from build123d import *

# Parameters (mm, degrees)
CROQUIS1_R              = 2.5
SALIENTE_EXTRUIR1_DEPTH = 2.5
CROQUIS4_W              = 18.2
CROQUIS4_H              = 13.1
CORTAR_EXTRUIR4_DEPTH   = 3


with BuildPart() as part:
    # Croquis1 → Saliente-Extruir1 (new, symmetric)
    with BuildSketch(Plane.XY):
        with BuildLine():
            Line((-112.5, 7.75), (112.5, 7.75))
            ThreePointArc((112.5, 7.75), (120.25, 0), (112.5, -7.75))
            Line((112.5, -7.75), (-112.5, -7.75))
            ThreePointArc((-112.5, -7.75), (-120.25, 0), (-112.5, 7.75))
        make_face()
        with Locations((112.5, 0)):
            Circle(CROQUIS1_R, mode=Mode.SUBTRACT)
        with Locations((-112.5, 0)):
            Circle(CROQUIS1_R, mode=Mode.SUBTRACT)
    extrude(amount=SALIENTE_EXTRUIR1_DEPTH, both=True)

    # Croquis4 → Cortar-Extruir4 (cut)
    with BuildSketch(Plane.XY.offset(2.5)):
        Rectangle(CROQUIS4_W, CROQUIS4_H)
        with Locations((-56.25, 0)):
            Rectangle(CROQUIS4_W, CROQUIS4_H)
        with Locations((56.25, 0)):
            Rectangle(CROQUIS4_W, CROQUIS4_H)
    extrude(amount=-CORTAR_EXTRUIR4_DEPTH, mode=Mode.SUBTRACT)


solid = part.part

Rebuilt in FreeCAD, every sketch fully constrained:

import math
import FreeCAD as App
import Part
import Sketcher
from FreeCAD import Vector
Q = App.Units.Quantity

doc = App.newDocument("Part")
body = doc.addObject("PartDesign::Body", "Body")

# Sketch on XY plane
sketch1 = doc.addObject("Sketcher::SketchObject", "Sketch")
body.addObject(sketch1)
sketch1.AttachmentSupport = (doc.XY_Plane, [""])
sketch1.MapMode = "FlatFace"
sketch1.addGeometry(Part.LineSegment(Vector(112.5, 7.8, 0), Vector(-112.5, 7.8, 0)), False)
sketch1.addGeometry(Part.ArcOfCircle(Part.Circle(Vector(-112.5, 0, 0), Vector(0, 0, 1), 7.8), math.radians(90), math.radians(270)), False)
sketch1.addGeometry(Part.LineSegment(Vector(-112.5, -7.8, 0), Vector(112.5, -7.8, 0)), False)
sketch1.addGeometry(Part.ArcOfCircle(Part.Circle(Vector(112.5, 0, 0), Vector(0, 0, 1), 7.8), math.radians(-90), math.radians(90)), False)
sketch1.addGeometry(Part.Circle(Vector(112.5, 0, 0), Vector(0, 0, 1), 2.5), False)
sketch1.addGeometry(Part.Circle(Vector(-112.5, 0, 0), Vector(0, 0, 1), 2.5), False)
sketch1.addConstraint(Sketcher.Constraint("Tangent", 0, 2, 1, 1))
sketch1.addConstraint(Sketcher.Constraint("Tangent", 1, 2, 2, 1))
sketch1.addConstraint(Sketcher.Constraint("Tangent", 2, 2, 3, 1))
sketch1.addConstraint(Sketcher.Constraint("Tangent", 3, 2, 0, 1))
sketch1.addConstraint(Sketcher.Constraint("Horizontal", 0))
sketch1.addConstraint(Sketcher.Constraint("Horizontal", 2))
sketch1.addConstraint(Sketcher.Constraint("Coincident", 4, 3, 3, 3))
sketch1.addConstraint(Sketcher.Constraint("Coincident", 5, 3, 1, 3))
sketch1.addConstraint(Sketcher.Constraint("Equal", 4, 5))
sketch1.addConstraint(Sketcher.Constraint("Symmetric", 1, 3, 3, 3, -1, 1))
sketch1.addConstraint(Sketcher.Constraint("Diameter", 4, Q("5 mm")))
sketch1.addConstraint(Sketcher.Constraint("DistanceX", 0, 2, 0, 1, Q("225 mm")))
sketch1.addConstraint(Sketcher.Constraint("Radius", 1, Q("7.75 mm")))
pad1 = doc.addObject("PartDesign::Pad", "Pad")
body.addObject(pad1)
pad1.Profile = sketch1
pad1.Length = 5
pad1.Midplane = True

# Sketch on XY plane
sketch2 = doc.addObject("Sketcher::SketchObject", "Sketch001")
body.addObject(sketch2)
sketch2.AttachmentSupport = (doc.XY_Plane, [""])
sketch2.MapMode = "FlatFace"
sketch2.AttachmentOffset = App.Placement(Vector(0, 0, 2.5), App.Rotation())
sketch2.addGeometry(Part.LineSegment(Vector(-9, 7, 0), Vector(-9, -7, 0)), False)
sketch2.addGeometry(Part.LineSegment(Vector(-9, -7, 0), Vector(9, -7, 0)), False)
sketch2.addGeometry(Part.LineSegment(Vector(9, -7, 0), Vector(9, 7, 0)), False)
sketch2.addGeometry(Part.LineSegment(Vector(9, 7, 0), Vector(-9, 7, 0)), False)
sketch2.addGeometry(Part.LineSegment(Vector(-65, 7, 0), Vector(-65, -7, 0)), False)
sketch2.addGeometry(Part.LineSegment(Vector(-65, -7, 0), Vector(-47, -7, 0)), False)
sketch2.addGeometry(Part.LineSegment(Vector(-47, -7, 0), Vector(-47, 7, 0)), False)
sketch2.addGeometry(Part.LineSegment(Vector(-47, 7, 0), Vector(-65, 7, 0)), False)
sketch2.addGeometry(Part.LineSegment(Vector(47, 7, 0), Vector(47, -7, 0)), False)
sketch2.addGeometry(Part.LineSegment(Vector(47, -7, 0), Vector(65, -7, 0)), False)
sketch2.addGeometry(Part.LineSegment(Vector(65, -7, 0), Vector(65, 7, 0)), False)
sketch2.addGeometry(Part.LineSegment(Vector(65, 7, 0), Vector(47, 7, 0)), False)
sketch2.addConstraint(Sketcher.Constraint("Coincident", 0, 2, 1, 1))
sketch2.addConstraint(Sketcher.Constraint("Coincident", 1, 2, 2, 1))
sketch2.addConstraint(Sketcher.Constraint("Coincident", 2, 2, 3, 1))
sketch2.addConstraint(Sketcher.Constraint("Coincident", 3, 2, 0, 1))
sketch2.addConstraint(Sketcher.Constraint("Coincident", 4, 2, 5, 1))
sketch2.addConstraint(Sketcher.Constraint("Coincident", 5, 2, 6, 1))
sketch2.addConstraint(Sketcher.Constraint("Coincident", 6, 2, 7, 1))
sketch2.addConstraint(Sketcher.Constraint("Coincident", 7, 2, 4, 1))
sketch2.addConstraint(Sketcher.Constraint("Coincident", 8, 2, 9, 1))
sketch2.addConstraint(Sketcher.Constraint("Coincident", 9, 2, 10, 1))
sketch2.addConstraint(Sketcher.Constraint("Coincident", 10, 2, 11, 1))
sketch2.addConstraint(Sketcher.Constraint("Coincident", 11, 2, 8, 1))
sketch2.addConstraint(Sketcher.Constraint("Vertical", 0))
sketch2.addConstraint(Sketcher.Constraint("Horizontal", 1))
sketch2.addConstraint(Sketcher.Constraint("Vertical", 2))
sketch2.addConstraint(Sketcher.Constraint("Horizontal", 3))
sketch2.addConstraint(Sketcher.Constraint("Vertical", 4))
sketch2.addConstraint(Sketcher.Constraint("Horizontal", 5))
sketch2.addConstraint(Sketcher.Constraint("Vertical", 6))
sketch2.addConstraint(Sketcher.Constraint("Horizontal", 7))
sketch2.addConstraint(Sketcher.Constraint("Vertical", 8))
sketch2.addConstraint(Sketcher.Constraint("Horizontal", 9))
sketch2.addConstraint(Sketcher.Constraint("Vertical", 10))
sketch2.addConstraint(Sketcher.Constraint("Horizontal", 11))
sketch2.addConstraint(Sketcher.Constraint("Symmetric", 0, 2, 2, 2, -1, 1))
sketch2.addConstraint(Sketcher.Constraint("Symmetric", 6, 2, 8, 2, -1, 1))
sketch2.addConstraint(Sketcher.Constraint("Symmetric", 4, 2, 10, 2, -1, 1))
sketch2.addConstraint(Sketcher.Constraint("Horizontal", 1, 2, 4, 2))
sketch2.addConstraint(Sketcher.Constraint("Horizontal", 3, 2, 6, 2))
sketch2.addConstraint(Sketcher.Constraint("Equal", 3, 5))
sketch2.addConstraint(Sketcher.Constraint("DistanceX", 1, 1, 1, 2, Q("18.2 mm")))
sketch2.addConstraint(Sketcher.Constraint("DistanceY", 0, 2, 0, 1, Q("13.1 mm")))
sketch2.addConstraint(Sketcher.Constraint("DistanceX", 5, 2, 8, 2, Q("94.3 mm")))
pocket1 = doc.addObject("PartDesign::Pocket", "Pocket")
body.addObject(pocket1)
pocket1.Profile = sketch2
pocket1.Length = 3

doc.recompute()
